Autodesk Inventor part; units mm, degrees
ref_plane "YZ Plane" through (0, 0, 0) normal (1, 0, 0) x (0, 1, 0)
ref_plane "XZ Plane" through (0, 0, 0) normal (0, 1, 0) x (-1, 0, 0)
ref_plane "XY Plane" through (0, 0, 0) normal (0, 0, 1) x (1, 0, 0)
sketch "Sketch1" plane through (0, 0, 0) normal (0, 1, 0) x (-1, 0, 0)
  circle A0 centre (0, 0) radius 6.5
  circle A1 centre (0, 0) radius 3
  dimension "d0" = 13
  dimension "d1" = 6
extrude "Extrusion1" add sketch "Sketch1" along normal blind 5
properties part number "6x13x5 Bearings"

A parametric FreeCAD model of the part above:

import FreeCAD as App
import Part
import Sketcher
from FreeCAD import Vector

doc = App.newDocument("Part")
params = doc.addObject("Spreadsheet::Sheet", "Params")
for row, (alias, value) in enumerate([
    ("sketch1_diameter", "13 mm"),
    ("sketch1_diameter2", "6 mm"),
    ("pad1_length", "5 mm"),
], start=1):
    params.set(f"A{row}", alias)
    params.set(f"B{row}", "=" + value)
    params.setAlias(f"B{row}", alias)

body = doc.addObject("PartDesign::Body", "Body")

sketch1 = body.newObject("Sketcher::SketchObject", "Sketch")
sketch1.AttachmentSupport = (doc.getObject("XZ_Plane"), [""])
sketch1.MapMode = "FlatFace"
sketch1.addGeometry([
    Part.Circle(Vector(0, 0, 0), Vector(0, 0, 1), 6.5),
    Part.Circle(Vector(0, 0, 0), Vector(0, 0, 1), 3),
], False)
sketch1.addConstraint([
    Sketcher.Constraint("Coincident", 0, 3, -1, 1),
    Sketcher.Constraint("Coincident", 1, 3, -1, 1),
    Sketcher.Constraint("Diameter", 0, 13.0),
    Sketcher.Constraint("Diameter", 1, 6.0),
])
sketch1.setExpression("Constraints[2]", "Params.sketch1_diameter")
sketch1.setExpression("Constraints[3]", "Params.sketch1_diameter2")
pad1 = body.newObject("PartDesign::Pad", "Pad")
pad1.Profile = sketch1
pad1.setExpression("Length", "Params.pad1_length")
pad1.Reversed = True

doc.recompute()
